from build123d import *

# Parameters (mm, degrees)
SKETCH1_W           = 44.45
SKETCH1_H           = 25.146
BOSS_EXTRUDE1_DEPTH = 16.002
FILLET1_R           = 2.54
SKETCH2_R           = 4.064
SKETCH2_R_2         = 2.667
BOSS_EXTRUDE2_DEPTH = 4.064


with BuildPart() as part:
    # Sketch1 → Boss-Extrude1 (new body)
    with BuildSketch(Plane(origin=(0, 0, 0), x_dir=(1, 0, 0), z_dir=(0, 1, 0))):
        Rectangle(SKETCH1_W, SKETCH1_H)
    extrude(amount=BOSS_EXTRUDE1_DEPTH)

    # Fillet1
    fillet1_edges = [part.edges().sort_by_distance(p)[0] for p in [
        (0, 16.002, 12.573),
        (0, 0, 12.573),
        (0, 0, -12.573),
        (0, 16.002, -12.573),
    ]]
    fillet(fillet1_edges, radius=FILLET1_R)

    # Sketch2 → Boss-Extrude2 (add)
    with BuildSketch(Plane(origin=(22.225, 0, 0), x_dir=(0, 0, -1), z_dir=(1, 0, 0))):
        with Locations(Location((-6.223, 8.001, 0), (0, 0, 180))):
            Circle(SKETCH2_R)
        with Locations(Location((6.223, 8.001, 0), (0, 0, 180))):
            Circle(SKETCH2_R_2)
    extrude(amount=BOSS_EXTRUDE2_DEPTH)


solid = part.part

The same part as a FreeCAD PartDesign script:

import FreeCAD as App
import Part
import Sketcher
Q = App.Units.Quantity


def edges_at(feature, points):
    """Names of the edges that pass closest to the given points."""
    edges = feature.Shape.Edges
    near = lambda p: min(range(len(edges)), key=lambda i: edges[i].distToShape(Part.Vertex(*p))[0])
    return sorted({f"Edge{near(p) + 1}" for p in points})


def add_polygon(sketch, points):
    """Adds a closed chain of lines whose ends are joined by coincident constraints."""
    first, n = sketch.GeometryCount, len(points)
    for a, b in zip(points, points[1:] + points[:1]):
        sketch.addGeometry(Part.LineSegment(App.Vector(*a, 0), App.Vector(*b, 0)), False)
    for i in range(n):
        sketch.addConstraint(Sketcher.Constraint("Coincident", first + i, 2, first + (i + 1) % n, 1))

doc = App.newDocument("Part")
body = doc.addObject("PartDesign::Body", "Body")

# Sketch on XZ plane
sketch1 = body.newObject("Sketcher::SketchObject", "Sketch")
sketch1.AttachmentSupport = (doc.getObject("XZ_Plane"), [""])
sketch1.MapMode = "FlatFace"
add_polygon(sketch1, [(-22.225, -12.573), (-22.225, 12.573), (22.225, 12.573), (22.225, -12.573)])  # lines 0-3
sketch1.addConstraint([
    Sketcher.Constraint("Vertical", 0),
    Sketcher.Constraint("Horizontal", 1),
    Sketcher.Constraint("Vertical", 2),
    Sketcher.Constraint("Horizontal", 3),
    Sketcher.Constraint("Symmetric", 0, 2, 2, 2, -1, 1),
    Sketcher.Constraint("DistanceX", 1, 1, 1, 2, Q("1.75 in")),
    Sketcher.Constraint("DistanceY", 0, 1, 0, 2, Q("0.99 in")),
])
pad1 = body.newObject("PartDesign::Pad", "Pad")
pad1.Profile = sketch1
pad1.Length = Q("0.63 in")
pad1.Reversed = True
doc.recompute()

fillet = body.newObject("PartDesign::Fillet", "Fillet")
fillet.Base = (pad1, edges_at(pad1, [
    (0, 16.002, 12.573),
    (0, 0, 12.573),
    (0, 0, -12.573),
    (0, 16.002, -12.573),
]))
fillet.Radius = Q("0.1 in")

# Sketch on YZ plane
sketch2 = body.newObject("Sketcher::SketchObject", "Sketch001")
sketch2.AttachmentSupport = (doc.getObject("YZ_Plane"), [""])
sketch2.MapMode = "FlatFace"
sketch2.AttachmentOffset = App.Placement(App.Vector(0, 0, 0.875 * 25.4), App.Rotation())
sketch2.addGeometry([
    Part.Circle(App.Vector(8.001, 6.223, 0), App.Vector(0, 0, 1), 4.064),
    Part.Circle(App.Vector(8.001, -6.223, 0), App.Vector(0, 0, 1), 2.667),
], False)
sketch2.addConstraint([
    Sketcher.Constraint("Symmetric", 0, 3, 1, 3, -1),
    Sketcher.Constraint("Diameter", 0, Q("0.32 in")),
    Sketcher.Constraint("Diameter", 1, Q("0.21 in")),
    Sketcher.Constraint("DistanceY", 1, 3, 0, 3, Q("0.49 in")),
    Sketcher.Constraint("DistanceX", -1, 1, 0, 3, Q("0.315 in")),
])
pad2 = body.newObject("PartDesign::Pad", "Pad001")
pad2.Profile = sketch2
pad2.Length = Q("0.16 in")

doc.recompute()
